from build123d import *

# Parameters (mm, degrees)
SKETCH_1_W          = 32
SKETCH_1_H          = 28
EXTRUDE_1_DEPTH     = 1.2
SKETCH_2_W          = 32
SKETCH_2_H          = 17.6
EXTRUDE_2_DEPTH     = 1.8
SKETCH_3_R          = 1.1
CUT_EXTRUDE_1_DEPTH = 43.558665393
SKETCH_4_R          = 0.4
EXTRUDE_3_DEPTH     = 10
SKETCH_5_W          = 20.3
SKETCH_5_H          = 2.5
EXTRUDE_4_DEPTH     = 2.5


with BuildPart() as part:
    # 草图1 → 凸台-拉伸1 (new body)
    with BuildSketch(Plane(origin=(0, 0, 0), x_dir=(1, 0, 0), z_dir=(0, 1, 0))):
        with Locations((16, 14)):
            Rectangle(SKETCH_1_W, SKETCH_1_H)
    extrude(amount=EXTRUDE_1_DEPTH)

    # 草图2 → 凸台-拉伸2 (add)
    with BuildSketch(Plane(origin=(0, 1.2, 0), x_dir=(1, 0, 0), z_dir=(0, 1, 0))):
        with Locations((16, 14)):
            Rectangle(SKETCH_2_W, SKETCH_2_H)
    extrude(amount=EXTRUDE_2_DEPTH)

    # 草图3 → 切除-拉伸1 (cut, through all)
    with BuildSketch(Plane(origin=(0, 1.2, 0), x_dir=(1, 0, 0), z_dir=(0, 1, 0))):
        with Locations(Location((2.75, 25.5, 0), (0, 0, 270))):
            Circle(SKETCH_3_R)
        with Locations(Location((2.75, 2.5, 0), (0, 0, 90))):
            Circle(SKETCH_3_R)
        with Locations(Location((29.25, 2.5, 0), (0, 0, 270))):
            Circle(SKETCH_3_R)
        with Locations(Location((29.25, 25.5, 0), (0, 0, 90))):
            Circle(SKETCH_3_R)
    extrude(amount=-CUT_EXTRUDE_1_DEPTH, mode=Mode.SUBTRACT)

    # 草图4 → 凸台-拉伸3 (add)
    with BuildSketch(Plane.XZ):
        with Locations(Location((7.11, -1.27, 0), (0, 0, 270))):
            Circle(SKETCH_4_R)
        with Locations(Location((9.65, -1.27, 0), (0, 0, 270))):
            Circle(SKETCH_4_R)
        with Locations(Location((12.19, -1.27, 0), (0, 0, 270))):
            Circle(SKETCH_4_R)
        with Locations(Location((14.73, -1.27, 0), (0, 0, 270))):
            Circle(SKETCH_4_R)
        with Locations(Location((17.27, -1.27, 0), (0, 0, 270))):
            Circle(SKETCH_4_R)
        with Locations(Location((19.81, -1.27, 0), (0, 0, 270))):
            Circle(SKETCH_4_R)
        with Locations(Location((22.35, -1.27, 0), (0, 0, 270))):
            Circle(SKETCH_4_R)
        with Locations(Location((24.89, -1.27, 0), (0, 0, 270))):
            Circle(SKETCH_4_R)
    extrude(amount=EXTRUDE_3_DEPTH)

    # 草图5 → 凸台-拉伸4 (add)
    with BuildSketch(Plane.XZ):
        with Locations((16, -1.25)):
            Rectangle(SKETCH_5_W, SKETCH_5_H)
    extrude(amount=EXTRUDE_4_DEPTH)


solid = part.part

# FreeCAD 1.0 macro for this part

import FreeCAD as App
import Part
import Sketcher
Q = App.Units.Quantity

doc = App.newDocument("Part")
params = doc.addObject("Spreadsheet::Sheet", "Params")
for row, (alias, value) in enumerate([
    ("sketch1_width", "32 mm"),
    ("sketch1_height", "28 mm"),
    ("pad1_length", "1.2 mm"),
    ("sketch2_width", "32 mm"),
    ("sketch2_height", "17.6 mm"),
    ("pad2_length", "1.8 mm"),
    ("sketch3_diameter", "2.2 mm"),
    ("sketch4_diameter", "0.8 mm"),
    ("pad3_length", "10 mm"),
    ("sketch5_width", "20.3 mm"),
    ("sketch5_height", "2.5 mm"),
    ("pad4_length", "2.5 mm"),
], start=1):
    params.set(f"A{row}", alias)
    params.set(f"B{row}", "=" + value)
    params.setAlias(f"B{row}", alias)

body = doc.addObject("PartDesign::Body", "Body")

# Sketch on XZ plane
sketch1 = body.newObject("Sketcher::SketchObject", "Sketch")
sketch1.AttachmentSupport = (doc.getObject("XZ_Plane"), [""])
sketch1.MapMode = "FlatFace"
sketch1.addGeometry(Part.LineSegment(App.Vector(0, -28, 0), App.Vector(0, 0, 0)), False)
sketch1.addGeometry(Part.LineSegment(App.Vector(0, 0, 0), App.Vector(32, 0, 0)), False)
sketch1.addGeometry(Part.LineSegment(App.Vector(32, 0, 0), App.Vector(32, -28, 0)), False)
sketch1.addGeometry(Part.LineSegment(App.Vector(32, -28, 0), App.Vector(0, -28, 0)), False)
sketch1.addConstraint(Sketcher.Constraint("Coincident", 0, 2, 1, 1))
sketch1.addConstraint(Sketcher.Constraint("Coincident", 1, 2, 2, 1))
sketch1.addConstraint(Sketcher.Constraint("Coincident", 2, 2, 3, 1))
sketch1.addConstraint(Sketcher.Constraint("Coincident", 3, 2, 0, 1))
sketch1.addConstraint(Sketcher.Constraint("Vertical", 0))
sketch1.addConstraint(Sketcher.Constraint("Horizontal", 1))
sketch1.addConstraint(Sketcher.Constraint("Vertical", 2))
sketch1.addConstraint(Sketcher.Constraint("Horizontal", 3))
sketch1.addConstraint(Sketcher.Constraint("Coincident", 0, 2, -1, 1))
sketch1.addConstraint(Sketcher.Constraint("DistanceX", 1, 1, 1, 2, Q("32 mm")))
sketch1.addConstraint(Sketcher.Constraint("DistanceY", 0, 1, 0, 2, Q("28 mm")))
sketch1.setExpression("Constraints[9]", "Params.sketch1_width")
sketch1.setExpression("Constraints[10]", "Params.sketch1_height")
pad1 = body.newObject("PartDesign::Pad", "Pad")
pad1.Profile = sketch1
pad1.setExpression("Length", "Params.pad1_length")
pad1.Reversed = True

# Sketch on XZ plane
sketch2 = body.newObject("Sketcher::SketchObject", "Sketch001")
sketch2.AttachmentSupport = (doc.getObject("XZ_Plane"), [""])
sketch2.MapMode = "FlatFace"
sketch2.AttachmentOffset = App.Placement(App.Vector(0, 0, -1.2), App.Rotation())
sketch2.addGeometry(Part.LineSegment(App.Vector(0, -23, 0), App.Vector(0, -5, 0)), False)
sketch2.addGeometry(Part.LineSegment(App.Vector(0, -5, 0), App.Vector(32, -5, 0)), False)
sketch2.addGeometry(Part.LineSegment(App.Vector(32, -5, 0), App.Vector(32, -23, 0)), False)
sketch2.addGeometry(Part.LineSegment(App.Vector(32, -23, 0), App.Vector(0, -23, 0)), False)
sketch2.addConstraint(Sketcher.Constraint("Coincident", 0, 2, 1, 1))
sketch2.addConstraint(Sketcher.Constraint("Coincident", 1, 2, 2, 1))
sketch2.addConstraint(Sketcher.Constraint("Coincident", 2, 2, 3, 1))
sketch2.addConstraint(Sketcher.Constraint("Coincident", 3, 2, 0, 1))
sketch2.addConstraint(Sketcher.Constraint("Vertical", 0))
sketch2.addConstraint(Sketcher.Constraint("Horizontal", 1))
sketch2.addConstraint(Sketcher.Constraint("Vertical", 2))
sketch2.addConstraint(Sketcher.Constraint("Horizontal", 3))
sketch2.addConstraint(Sketcher.Constraint("PointOnObject", 0, 2, -2))
sketch2.addConstraint(Sketcher.Constraint("DistanceX", 1, 1, 1, 2, Q("32 mm")))
sketch2.addConstraint(Sketcher.Constraint("DistanceY", 0, 1, 0, 2, Q("17.6 mm")))
sketch2.addConstraint(Sketcher.Constraint("DistanceY", 0, 2, -1, 1, Q("5.2 mm")))
sketch2.setExpression("Constraints[9]", "Params.sketch2_width")
sketch2.setExpression("Constraints[10]", "Params.sketch2_height")
pad2 = body.newObject("PartDesign::Pad", "Pad001")
pad2.Profile = sketch2
pad2.setExpression("Length", "Params.pad2_length")
pad2.Reversed = True

# Sketch on XZ plane
sketch3 = body.newObject("Sketcher::SketchObject", "Sketch002")
sketch3.AttachmentSupport = (doc.getObject("XZ_Plane"), [""])
sketch3.MapMode = "FlatFace"
sketch3.AttachmentOffset = App.Placement(App.Vector(0, 0, -1.2), App.Rotation())
sketch3.addGeometry(Part.Circle(App.Vector(2.8, -25.5, 0), App.Vector(0, 0, 1), 1.1), False)
sketch3.addGeometry(Part.Circle(App.Vector(2.8, -2.5, 0), App.Vector(0, 0, 1), 1.1), False)
sketch3.addGeometry(Part.Circle(App.Vector(29.2, -2.5, 0), App.Vector(0, 0, 1), 1.1), False)
sketch3.addGeometry(Part.Circle(App.Vector(29.2, -25.5, 0), App.Vector(0, 0, 1), 1.1), False)
sketch3.addConstraint(Sketcher.Constraint("Equal", 0, 1))
sketch3.addConstraint(Sketcher.Constraint("Equal", 1, 2))
sketch3.addConstraint(Sketcher.Constraint("Equal", 2, 3))
sketch3.addConstraint(Sketcher.Constraint("Horizontal", 1, 3, 2, 3))
sketch3.addConstraint(Sketcher.Constraint("Horizontal", 0, 3, 3, 3))
sketch3.addConstraint(Sketcher.Constraint("Vertical", 0, 3, 1, 3))
sketch3.addConstraint(Sketcher.Constraint("Vertical", 2, 3, 3, 3))
sketch3.addConstraint(Sketcher.Constraint("Diameter", 0, Q("2.2 mm")))
sketch3.addConstraint(Sketcher.Constraint("DistanceY", 0, 3, 1, 3, Q("23 mm")))
sketch3.addConstraint(Sketcher.Constraint("DistanceY", 0, 3, -1, 1, Q("25.5 mm")))
sketch3.addConstraint(Sketcher.Constraint("DistanceX", 1, 3, 2, 3, Q("26.5 mm")))
sketch3.addConstraint(Sketcher.Constraint("DistanceX", -1, 1, 0, 3, Q("2.75 mm")))
sketch3.setExpression("Constraints[7]", "Params.sketch3_diameter")
pocket1 = body.newObject("PartDesign::Pocket", "Pocket")
pocket1.Profile = sketch3
pocket1.Type = "ThroughAll"
pocket1.Reversed = True

# Sketch on XZ plane
sketch4 = body.newObject("Sketcher::SketchObject", "Sketch003")
sketch4.AttachmentSupport = (doc.getObject("XZ_Plane"), [""])
sketch4.MapMode = "FlatFace"
sketch4.addGeometry(Part.Circle(App.Vector(7.11, -1.27, 0), App.Vector(0, 0, 1), 0.4), False)
sketch4.addGeometry(Part.Circle(App.Vector(9.65, -1.27, 0), App.Vector(0, 0, 1), 0.4), False)
sketch4.addGeometry(Part.Circle(App.Vector(12.19, -1.27, 0), App.Vector(0, 0, 1), 0.4), False)
sketch4.addGeometry(Part.Circle(App.Vector(14.73, -1.27, 0), App.Vector(0, 0, 1), 0.4), False)
sketch4.addGeometry(Part.Circle(App.Vector(17.27, -1.27, 0), App.Vector(0, 0, 1), 0.4), False)
sketch4.addGeometry(Part.Circle(App.Vector(19.81, -1.27, 0), App.Vector(0, 0, 1), 0.4), False)
sketch4.addGeometry(Part.Circle(App.Vector(22.35, -1.27, 0), App.Vector(0, 0, 1), 0.4), False)
sketch4.addGeometry(Part.Circle(App.Vector(24.89, -1.27, 0), App.Vector(0, 0, 1), 0.4), False)
sketch4.addConstraint(Sketcher.Constraint("Equal", 0, 1))
sketch4.addConstraint(Sketcher.Constraint("Equal", 1, 2))
sketch4.addConstraint(Sketcher.Constraint("Equal", 2, 3))
sketch4.addConstraint(Sketcher.Constraint("Equal", 3, 4))
sketch4.addConstraint(Sketcher.Constraint("Equal", 4, 5))
sketch4.addConstraint(Sketcher.Constraint("Equal", 5, 6))
sketch4.addConstraint(Sketcher.Constraint("Equal", 6, 7))
sketch4.addConstraint(Sketcher.Constraint("Horizontal", 0, 3, 1, 3))
sketch4.addConstraint(Sketcher.Constraint("Horizontal", 1, 3, 2, 3))
sketch4.addConstraint(Sketcher.Constraint("Horizontal", 2, 3, 3, 3))
sketch4.addConstraint(Sketcher.Constraint("Horizontal", 3, 3, 4, 3))
sketch4.addConstraint(Sketcher.Constraint("Horizontal", 4, 3, 5, 3))
sketch4.addConstraint(Sketcher.Constraint("Horizontal", 5, 3, 6, 3))
sketch4.addConstraint(Sketcher.Constraint("Horizontal", 6, 3, 7, 3))
sketch4.addConstraint(Sketcher.Constraint("Diameter", 0, Q("0.8 mm")))
sketch4.addConstraint(Sketcher.Constraint("DistanceX", 0, 3, 5, 3, Q("12.7 mm")))
sketch4.addConstraint(Sketcher.Constraint("DistanceX", 1, 3, 6, 3, Q("12.7 mm")))
sketch4.addConstraint(Sketcher.Constraint("DistanceX", 2, 3, 7, 3, Q("12.7 mm")))
sketch4.addConstraint(Sketcher.Constraint("DistanceX", -1, 1, 0, 3, Q("7.11 mm")))
sketch4.addConstraint(Sketcher.Constraint("DistanceY", 0, 3, -1, 1, Q("1.27 mm")))
sketch4.addConstraint(Sketcher.Constraint("DistanceX", -1, 1, 1, 3, Q("9.65 mm")))
sketch4.addConstraint(Sketcher.Constraint("DistanceX", -1, 1, 2, 3, Q("12.19 mm")))
sketch4.addConstraint(Sketcher.Constraint("DistanceX", -1, 1, 3, 3, Q("14.73 mm")))
sketch4.addConstraint(Sketcher.Constraint("DistanceX", -1, 1, 4, 3, Q("17.27 mm")))
sketch4.setExpression("Constraints[14]", "Params.sketch4_diameter")
pad3 = body.newObject("PartDesign::Pad", "Pad002")
pad3.Profile = sketch4
pad3.setExpression("Length", "Params.pad3_length")

# Sketch on XZ plane
sketch5 = body.newObject("Sketcher::SketchObject", "Sketch004")
sketch5.AttachmentSupport = (doc.getObject("XZ_Plane"), [""])
sketch5.MapMode = "FlatFace"
sketch5.addGeometry(Part.LineSegment(App.Vector(5.8, 0, 0), App.Vector(5.8, -2.5, 0)), False)
sketch5.addGeometry(Part.LineSegment(App.Vector(5.8, -2.5, 0), App.Vector(26.1, -2.5, 0)), False)
sketch5.addGeometry(Part.LineSegment(App.Vector(26.1, -2.5, 0), App.Vector(26.1, 0, 0)), False)
sketch5.addGeometry(Part.LineSegment(App.Vector(26.1, 0, 0), App.Vector(5.8, 0, 0)), False)
sketch5.addConstraint(Sketcher.Constraint("Coincident", 0, 2, 1, 1))
sketch5.addConstraint(Sketcher.Constraint("Coincident", 1, 2, 2, 1))
sketch5.addConstraint(Sketcher.Constraint("Coincident", 2, 2, 3, 1))
sketch5.addConstraint(Sketcher.Constraint("Coincident", 3, 2, 0, 1))
sketch5.addConstraint(Sketcher.Constraint("Vertical", 0))
sketch5.addConstraint(Sketcher.Constraint("Horizontal", 1))
sketch5.addConstraint(Sketcher.Constraint("Vertical", 2))
sketch5.addConstraint(Sketcher.Constraint("Horizontal", 3))
sketch5.addConstraint(Sketcher.Constraint("PointOnObject", 2, 2, -1))
sketch5.addConstraint(Sketcher.Constraint("DistanceX", 1, 1, 1, 2, Q("20.3 mm")))
sketch5.addConstraint(Sketcher.Constraint("DistanceY", 0, 2, 0, 1, Q("2.5 mm")))
sketch5.addConstraint(Sketcher.Constraint("DistanceX", -1, 1, 0, 2, Q("5.85 mm")))
sketch5.setExpression("Constraints[9]", "Params.sketch5_width")
sketch5.setExpression("Constraints[10]", "Params.sketch5_height")
pad4 = body.newObject("PartDesign::Pad", "Pad003")
pad4.Profile = sketch5
pad4.setExpression("Length", "Params.pad4_length")

doc.recompute()
